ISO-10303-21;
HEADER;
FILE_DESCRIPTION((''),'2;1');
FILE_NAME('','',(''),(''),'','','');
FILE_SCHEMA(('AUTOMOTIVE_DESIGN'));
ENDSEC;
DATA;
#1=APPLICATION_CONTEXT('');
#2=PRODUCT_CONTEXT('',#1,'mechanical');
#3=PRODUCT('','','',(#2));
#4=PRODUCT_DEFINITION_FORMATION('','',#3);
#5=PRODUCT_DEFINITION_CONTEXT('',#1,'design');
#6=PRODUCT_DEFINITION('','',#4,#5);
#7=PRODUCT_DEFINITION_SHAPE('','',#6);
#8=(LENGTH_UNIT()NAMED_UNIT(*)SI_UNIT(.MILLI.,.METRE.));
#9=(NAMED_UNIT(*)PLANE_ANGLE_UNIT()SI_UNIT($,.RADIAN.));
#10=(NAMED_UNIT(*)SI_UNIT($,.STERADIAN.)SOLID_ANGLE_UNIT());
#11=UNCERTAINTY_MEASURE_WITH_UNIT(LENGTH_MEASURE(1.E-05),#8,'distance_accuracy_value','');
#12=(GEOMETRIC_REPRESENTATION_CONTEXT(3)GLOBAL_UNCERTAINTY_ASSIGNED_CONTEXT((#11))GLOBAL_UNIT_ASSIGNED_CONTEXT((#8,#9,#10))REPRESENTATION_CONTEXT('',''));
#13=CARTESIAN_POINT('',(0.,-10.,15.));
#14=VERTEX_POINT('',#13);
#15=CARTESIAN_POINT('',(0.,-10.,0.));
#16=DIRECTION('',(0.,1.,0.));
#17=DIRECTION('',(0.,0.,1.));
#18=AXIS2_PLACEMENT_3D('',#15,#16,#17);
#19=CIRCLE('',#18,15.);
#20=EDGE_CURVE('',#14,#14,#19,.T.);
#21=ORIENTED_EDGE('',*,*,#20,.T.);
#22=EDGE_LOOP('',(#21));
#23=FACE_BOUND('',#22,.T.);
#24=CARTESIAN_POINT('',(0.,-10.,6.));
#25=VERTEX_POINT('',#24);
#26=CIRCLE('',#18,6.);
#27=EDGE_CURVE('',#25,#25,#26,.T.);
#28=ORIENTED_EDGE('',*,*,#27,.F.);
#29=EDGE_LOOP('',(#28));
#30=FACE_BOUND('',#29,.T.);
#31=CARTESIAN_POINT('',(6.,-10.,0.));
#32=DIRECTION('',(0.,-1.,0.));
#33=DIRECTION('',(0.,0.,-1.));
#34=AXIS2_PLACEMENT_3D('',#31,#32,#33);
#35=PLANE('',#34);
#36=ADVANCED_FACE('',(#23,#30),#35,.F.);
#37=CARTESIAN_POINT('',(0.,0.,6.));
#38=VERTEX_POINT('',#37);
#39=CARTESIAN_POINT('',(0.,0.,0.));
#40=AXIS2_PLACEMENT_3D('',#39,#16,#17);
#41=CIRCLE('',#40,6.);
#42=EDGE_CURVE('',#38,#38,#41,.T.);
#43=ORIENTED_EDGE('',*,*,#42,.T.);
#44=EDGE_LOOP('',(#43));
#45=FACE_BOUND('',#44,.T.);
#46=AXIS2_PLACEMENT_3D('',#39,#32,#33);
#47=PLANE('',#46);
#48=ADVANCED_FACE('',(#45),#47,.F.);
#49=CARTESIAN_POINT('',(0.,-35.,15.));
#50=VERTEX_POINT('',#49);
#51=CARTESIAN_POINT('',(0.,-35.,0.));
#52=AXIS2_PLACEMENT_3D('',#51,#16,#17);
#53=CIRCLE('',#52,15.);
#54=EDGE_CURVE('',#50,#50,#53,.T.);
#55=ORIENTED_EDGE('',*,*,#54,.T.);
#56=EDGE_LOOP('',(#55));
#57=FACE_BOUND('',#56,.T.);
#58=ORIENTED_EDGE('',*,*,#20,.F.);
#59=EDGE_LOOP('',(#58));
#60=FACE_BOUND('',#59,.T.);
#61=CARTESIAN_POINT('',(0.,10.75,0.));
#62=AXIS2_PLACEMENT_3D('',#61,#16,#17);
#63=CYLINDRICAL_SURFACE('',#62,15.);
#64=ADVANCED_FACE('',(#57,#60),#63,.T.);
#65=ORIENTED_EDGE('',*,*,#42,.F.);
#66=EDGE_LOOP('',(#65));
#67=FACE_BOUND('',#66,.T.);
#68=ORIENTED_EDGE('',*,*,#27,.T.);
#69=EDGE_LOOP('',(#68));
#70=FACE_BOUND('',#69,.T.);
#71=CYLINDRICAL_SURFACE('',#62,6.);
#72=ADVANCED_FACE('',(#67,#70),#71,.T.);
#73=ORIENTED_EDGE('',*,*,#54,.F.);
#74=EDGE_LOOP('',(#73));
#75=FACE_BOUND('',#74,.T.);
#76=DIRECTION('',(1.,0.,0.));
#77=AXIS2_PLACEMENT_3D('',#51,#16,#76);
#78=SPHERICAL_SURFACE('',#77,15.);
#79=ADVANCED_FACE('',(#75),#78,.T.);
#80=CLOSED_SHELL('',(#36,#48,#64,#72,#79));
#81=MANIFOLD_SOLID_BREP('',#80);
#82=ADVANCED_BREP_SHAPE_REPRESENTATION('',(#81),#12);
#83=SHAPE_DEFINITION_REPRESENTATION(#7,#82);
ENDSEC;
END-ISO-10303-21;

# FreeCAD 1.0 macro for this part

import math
import FreeCAD as App
import Part
import Sketcher

V = App.Vector

doc = App.newDocument("Part")
body = doc.addObject("PartDesign::Body", "Body")

sketch1 = doc.addObject("Sketcher::SketchObject", "Sketch")
body.addObject(sketch1)
sketch1.AttachmentSupport = (doc.XY_Plane, [""])
sketch1.MapMode = "FlatFace"
sketch1.addGeometry(Part.LineSegment(V(6, 0, 0), V(0, 0, 0)), False)
sketch1.addGeometry(Part.LineSegment(V(0, 0, 0), V(0, -50, 0)), False)
sketch1.addGeometry(Part.ArcOfCircle(Part.Circle(V(0, -35, 0), V(0, 0, 1), 15), math.radians(-90), math.radians(0)), False)
sketch1.addGeometry(Part.LineSegment(V(15, -35, 0), V(15, -10, 0)), False)
sketch1.addGeometry(Part.LineSegment(V(15, -10, 0), V(6, -10, 0)), False)
sketch1.addGeometry(Part.LineSegment(V(6, -10, 0), V(6, 0, 0)), False)
sketch1.addConstraint(Sketcher.Constraint("Coincident", 0, 2, 1, 1))
sketch1.addConstraint(Sketcher.Constraint("Coincident", 1, 2, 2, 1))
sketch1.addConstraint(Sketcher.Constraint("Tangent", 2, 2, 3, 1))
sketch1.addConstraint(Sketcher.Constraint("Coincident", 3, 2, 4, 1))
sketch1.addConstraint(Sketcher.Constraint("Coincident", 4, 2, 5, 1))
sketch1.addConstraint(Sketcher.Constraint("Coincident", 5, 2, 0, 1))
sketch1.addConstraint(Sketcher.Constraint("Horizontal", 0))
sketch1.addConstraint(Sketcher.Constraint("Vertical", 1))
sketch1.addConstraint(Sketcher.Constraint("Vertical", 3))
sketch1.addConstraint(Sketcher.Constraint("Horizontal", 4))
sketch1.addConstraint(Sketcher.Constraint("Vertical", 5))
sketch1.addConstraint(Sketcher.Constraint("Coincident", 0, 2, -1, 1))
sketch1.addConstraint(Sketcher.Constraint("PointOnObject", 2, 3, -2))
sketch1.addConstraint(Sketcher.Constraint("Radius", 2, 15.0))
sketch1.addConstraint(Sketcher.Constraint("DistanceX", 0, 2, 0, 1, 6.0))
sketch1.addConstraint(Sketcher.Constraint("DistanceY", 1, 2, 1, 1, 50.0))
sketch1.addConstraint(Sketcher.Constraint("DistanceY", 3, 1, 3, 2, 25.0))
revolution = doc.addObject("PartDesign::Revolution", "Revolution")
body.addObject(revolution)
revolution.Profile = sketch1
revolution.ReferenceAxis = (sketch1, ["V_Axis"])
revolution.Angle = 360

doc.recompute()
